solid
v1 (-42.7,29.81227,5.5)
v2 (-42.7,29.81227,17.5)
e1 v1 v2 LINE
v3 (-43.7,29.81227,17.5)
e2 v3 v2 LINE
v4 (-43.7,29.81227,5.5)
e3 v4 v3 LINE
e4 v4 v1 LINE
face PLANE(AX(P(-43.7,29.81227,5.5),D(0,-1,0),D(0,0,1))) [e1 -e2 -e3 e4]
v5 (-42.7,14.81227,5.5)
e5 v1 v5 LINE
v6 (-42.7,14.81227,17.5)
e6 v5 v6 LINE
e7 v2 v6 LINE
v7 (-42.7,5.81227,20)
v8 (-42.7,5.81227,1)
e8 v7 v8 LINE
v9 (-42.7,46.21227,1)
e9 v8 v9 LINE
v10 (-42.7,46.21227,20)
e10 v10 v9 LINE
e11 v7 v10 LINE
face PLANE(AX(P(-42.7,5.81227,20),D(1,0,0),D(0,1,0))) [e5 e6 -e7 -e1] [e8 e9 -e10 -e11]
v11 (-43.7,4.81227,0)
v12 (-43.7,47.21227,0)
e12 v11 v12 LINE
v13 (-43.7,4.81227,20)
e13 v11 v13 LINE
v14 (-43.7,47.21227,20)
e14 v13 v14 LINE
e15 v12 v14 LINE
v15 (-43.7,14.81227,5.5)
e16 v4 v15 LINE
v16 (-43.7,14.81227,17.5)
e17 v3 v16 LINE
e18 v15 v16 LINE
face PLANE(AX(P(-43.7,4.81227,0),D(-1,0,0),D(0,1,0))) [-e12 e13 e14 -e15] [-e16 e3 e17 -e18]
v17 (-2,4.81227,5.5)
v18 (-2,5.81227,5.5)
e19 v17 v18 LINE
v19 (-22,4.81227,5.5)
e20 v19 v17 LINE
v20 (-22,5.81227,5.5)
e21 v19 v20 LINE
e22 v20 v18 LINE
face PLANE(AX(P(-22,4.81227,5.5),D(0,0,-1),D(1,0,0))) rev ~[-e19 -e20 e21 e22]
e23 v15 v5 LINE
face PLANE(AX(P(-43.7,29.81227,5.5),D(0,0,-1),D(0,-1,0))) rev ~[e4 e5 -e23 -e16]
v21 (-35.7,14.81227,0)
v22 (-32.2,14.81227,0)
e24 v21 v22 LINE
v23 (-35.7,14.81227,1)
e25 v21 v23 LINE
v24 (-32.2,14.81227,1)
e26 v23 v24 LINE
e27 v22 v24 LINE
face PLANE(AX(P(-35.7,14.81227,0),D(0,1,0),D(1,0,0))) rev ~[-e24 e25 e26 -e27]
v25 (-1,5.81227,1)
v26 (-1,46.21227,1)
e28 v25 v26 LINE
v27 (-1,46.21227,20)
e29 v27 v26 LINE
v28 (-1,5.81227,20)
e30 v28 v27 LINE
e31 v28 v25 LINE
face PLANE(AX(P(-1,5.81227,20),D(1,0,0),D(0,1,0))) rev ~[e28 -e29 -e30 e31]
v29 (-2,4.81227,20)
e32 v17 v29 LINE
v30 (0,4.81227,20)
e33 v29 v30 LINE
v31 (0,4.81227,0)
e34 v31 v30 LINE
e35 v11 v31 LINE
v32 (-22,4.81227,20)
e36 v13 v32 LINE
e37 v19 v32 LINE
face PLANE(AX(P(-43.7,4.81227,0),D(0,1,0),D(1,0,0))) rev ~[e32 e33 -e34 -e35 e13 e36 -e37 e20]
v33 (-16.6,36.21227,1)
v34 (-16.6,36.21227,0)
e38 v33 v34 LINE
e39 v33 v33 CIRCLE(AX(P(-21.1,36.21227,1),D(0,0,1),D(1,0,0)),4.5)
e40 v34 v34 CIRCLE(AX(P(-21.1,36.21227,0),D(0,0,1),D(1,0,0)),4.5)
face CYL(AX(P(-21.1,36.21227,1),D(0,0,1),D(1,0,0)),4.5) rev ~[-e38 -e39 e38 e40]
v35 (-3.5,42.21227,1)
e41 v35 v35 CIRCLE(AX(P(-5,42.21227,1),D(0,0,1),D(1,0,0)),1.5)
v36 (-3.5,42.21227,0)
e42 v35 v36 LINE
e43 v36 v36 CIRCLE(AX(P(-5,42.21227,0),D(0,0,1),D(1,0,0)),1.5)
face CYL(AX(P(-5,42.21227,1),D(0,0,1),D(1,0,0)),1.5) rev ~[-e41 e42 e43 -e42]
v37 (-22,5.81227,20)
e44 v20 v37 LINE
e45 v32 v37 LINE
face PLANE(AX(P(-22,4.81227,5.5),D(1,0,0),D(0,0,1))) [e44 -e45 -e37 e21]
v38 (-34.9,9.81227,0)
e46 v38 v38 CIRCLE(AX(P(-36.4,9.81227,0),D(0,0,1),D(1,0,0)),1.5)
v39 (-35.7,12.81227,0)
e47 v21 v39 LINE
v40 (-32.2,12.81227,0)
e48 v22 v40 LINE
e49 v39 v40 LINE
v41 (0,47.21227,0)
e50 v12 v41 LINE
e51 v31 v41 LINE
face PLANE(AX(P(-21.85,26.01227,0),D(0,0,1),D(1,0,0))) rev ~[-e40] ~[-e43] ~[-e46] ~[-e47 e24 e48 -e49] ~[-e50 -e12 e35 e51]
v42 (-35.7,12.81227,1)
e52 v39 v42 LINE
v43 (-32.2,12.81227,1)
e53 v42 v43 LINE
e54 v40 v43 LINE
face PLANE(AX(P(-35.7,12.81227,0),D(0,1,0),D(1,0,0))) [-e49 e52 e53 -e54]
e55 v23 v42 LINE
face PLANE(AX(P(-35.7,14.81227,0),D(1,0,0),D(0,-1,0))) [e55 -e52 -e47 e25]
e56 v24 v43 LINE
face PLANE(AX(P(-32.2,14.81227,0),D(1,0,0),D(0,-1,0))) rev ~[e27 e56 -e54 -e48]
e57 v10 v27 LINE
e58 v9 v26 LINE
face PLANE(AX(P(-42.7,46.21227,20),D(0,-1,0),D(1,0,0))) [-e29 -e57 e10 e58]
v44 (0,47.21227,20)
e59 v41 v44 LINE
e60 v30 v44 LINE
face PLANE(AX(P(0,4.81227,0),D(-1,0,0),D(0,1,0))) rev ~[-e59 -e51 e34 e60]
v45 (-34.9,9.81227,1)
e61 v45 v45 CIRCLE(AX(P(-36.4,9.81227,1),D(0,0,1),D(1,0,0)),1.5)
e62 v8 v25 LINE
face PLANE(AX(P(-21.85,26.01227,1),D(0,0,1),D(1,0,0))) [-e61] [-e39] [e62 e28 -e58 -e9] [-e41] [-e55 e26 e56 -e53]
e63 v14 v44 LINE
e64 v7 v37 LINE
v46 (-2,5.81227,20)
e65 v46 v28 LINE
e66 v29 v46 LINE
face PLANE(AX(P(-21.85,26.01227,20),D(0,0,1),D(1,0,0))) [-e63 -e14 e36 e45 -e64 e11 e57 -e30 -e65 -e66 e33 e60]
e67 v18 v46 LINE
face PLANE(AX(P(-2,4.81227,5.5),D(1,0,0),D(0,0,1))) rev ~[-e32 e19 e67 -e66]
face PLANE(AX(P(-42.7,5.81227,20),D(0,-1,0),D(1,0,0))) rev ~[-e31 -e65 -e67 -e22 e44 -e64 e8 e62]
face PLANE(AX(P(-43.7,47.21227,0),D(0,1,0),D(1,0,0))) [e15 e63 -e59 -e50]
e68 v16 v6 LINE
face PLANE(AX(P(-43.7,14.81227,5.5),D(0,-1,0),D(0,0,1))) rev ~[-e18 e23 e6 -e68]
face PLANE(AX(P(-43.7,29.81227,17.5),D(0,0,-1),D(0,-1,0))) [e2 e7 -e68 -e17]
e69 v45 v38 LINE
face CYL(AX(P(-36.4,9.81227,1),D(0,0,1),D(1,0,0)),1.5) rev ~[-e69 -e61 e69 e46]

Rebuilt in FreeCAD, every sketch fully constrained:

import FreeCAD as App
import Part
import Sketcher

doc = App.newDocument("Part")
body = doc.addObject("PartDesign::Body", "Body")

sketch1 = body.newObject("Sketcher::SketchObject", "Sketch")
sketch1.AttachmentSupport = (doc.getObject("XY_Plane"), [""])
sketch1.MapMode = "FlatFace"
sketch1.addGeometry([
    Part.LineSegment(App.Vector(-44, 47, 0), App.Vector(-44, 5, 0)),
    Part.LineSegment(App.Vector(-44, 5, 0), App.Vector(0, 5, 0)),
    Part.LineSegment(App.Vector(0, 5, 0), App.Vector(0, 47, 0)),
    Part.LineSegment(App.Vector(0, 47, 0), App.Vector(-44, 47, 0)),
], False)
sketch1.addConstraint([
    Sketcher.Constraint("Coincident", 0, 2, 1, 1),
    Sketcher.Constraint("Coincident", 1, 2, 2, 1),
    Sketcher.Constraint("Coincident", 2, 2, 3, 1),
    Sketcher.Constraint("Coincident", 3, 2, 0, 1),
    Sketcher.Constraint("Vertical", 0),
    Sketcher.Constraint("Horizontal", 1),
    Sketcher.Constraint("Vertical", 2),
    Sketcher.Constraint("Horizontal", 3),
    Sketcher.Constraint("PointOnObject", 1, 2, -2),
    Sketcher.Constraint("DistanceX", 1, 1, 1, 2, 43.7),
    Sketcher.Constraint("DistanceY", 0, 2, 0, 1, 42.4),
    Sketcher.Constraint("DistanceY", -1, 1, 0, 2, 4.81227),
])
pad1 = body.newObject("PartDesign::Pad", "Pad")
pad1.Profile = sketch1
pad1.Length = 20

sketch2 = body.newObject("Sketcher::SketchObject", "Sketch001")
sketch2.AttachmentSupport = (doc.getObject("XY_Plane"), [""])
sketch2.MapMode = "FlatFace"
sketch2.AttachmentOffset = App.Placement(App.Vector(0, 0, 20), App.Rotation())
sketch2.addGeometry([
    Part.LineSegment(App.Vector(-43, 46, 0), App.Vector(-43, 6, 0)),
    Part.LineSegment(App.Vector(-43, 6, 0), App.Vector(-1, 6, 0)),
    Part.LineSegment(App.Vector(-1, 6, 0), App.Vector(-1, 46, 0)),
    Part.LineSegment(App.Vector(-1, 46, 0), App.Vector(-43, 46, 0)),
], False)
sketch2.addConstraint([
    Sketcher.Constraint("Coincident", 0, 2, 1, 1),
    Sketcher.Constraint("Coincident", 1, 2, 2, 1),
    Sketcher.Constraint("Coincident", 2, 2, 3, 1),
    Sketcher.Constraint("Coincident", 3, 2, 0, 1),
    Sketcher.Constraint("Vertical", 0),
    Sketcher.Constraint("Horizontal", 1),
    Sketcher.Constraint("Vertical", 2),
    Sketcher.Constraint("Horizontal", 3),
    Sketcher.Constraint("DistanceX", 1, 1, 1, 2, 41.7),
    Sketcher.Constraint("DistanceY", 0, 2, 0, 1, 40.4),
    Sketcher.Constraint("DistanceX", 1, 2, -1, 1, 1.0),
    Sketcher.Constraint("DistanceY", -1, 1, 0, 2, 5.81227),
])
pocket1 = body.newObject("PartDesign::Pocket", "Pocket")
pocket1.Profile = sketch2
pocket1.Length = 19

sketch3 = body.newObject("Sketcher::SketchObject", "Sketch002")
sketch3.AttachmentSupport = (doc.getObject("XY_Plane"), [""])
sketch3.MapMode = "FlatFace"
sketch3.AttachmentOffset = App.Placement(App.Vector(0, 0, 1), App.Rotation())
sketch3.addGeometry([
    Part.Circle(App.Vector(-5, 42.2, 0), App.Vector(0, 0, 1), 1.5),
    Part.Circle(App.Vector(-36.4, 9.8, 0), App.Vector(0, 0, 1), 1.5),
], False)
sketch3.addConstraint([
    Sketcher.Constraint("Equal", 0, 1),
    Sketcher.Constraint("Diameter", 0, 3.0),
    Sketcher.Constraint("DistanceX", 0, 3, -1, 1, 5.0),
    Sketcher.Constraint("DistanceX", 1, 3, -1, 1, 36.4),
    Sketcher.Constraint("DistanceY", 1, 3, 0, 3, 32.4),
    Sketcher.Constraint("DistanceY", -1, 1, 0, 3, 42.21227),
])
pocket2 = body.newObject("PartDesign::Pocket", "Pocket001")
pocket2.Profile = sketch3
pocket2.Length = 1

sketch4 = body.newObject("Sketcher::SketchObject", "Sketch003")
sketch4.AttachmentSupport = (doc.getObject("XY_Plane"), [""])
sketch4.MapMode = "FlatFace"
sketch4.AttachmentOffset = App.Placement(App.Vector(0, 0, 1), App.Rotation())
sketch4.addGeometry(Part.Circle(App.Vector(-21.1, 36.2, 0), App.Vector(0, 0, 1), 4.5), False)
sketch4.addConstraint([
    Sketcher.Constraint("Diameter", 0, 9.0),
    Sketcher.Constraint("DistanceX", 0, 3, -1, 1, 21.1),
    Sketcher.Constraint("DistanceY", -1, 1, 0, 3, 36.21227),
])
pocket3 = body.newObject("PartDesign::Pocket", "Pocket002")
pocket3.Profile = sketch4
pocket3.Length = 1

sketch5 = body.newObject("Sketcher::SketchObject", "Sketch004")
sketch5.AttachmentSupport = (doc.getObject("YZ_Plane"), [""])
sketch5.MapMode = "FlatFace"
sketch5.AttachmentOffset = App.Placement(App.Vector(0, 0, -43.7), App.Rotation())
sketch5.addGeometry([
    Part.LineSegment(App.Vector(30, 18, 0), App.Vector(30, 6, 0)),
    Part.LineSegment(App.Vector(30, 6, 0), App.Vector(15, 6, 0)),
    Part.LineSegment(App.Vector(15, 6, 0), App.Vector(15, 18, 0)),
    Part.LineSegment(App.Vector(15, 18, 0), App.Vector(30, 18, 0)),
], False)
sketch5.addConstraint([
    Sketcher.Constraint("Coincident", 0, 2, 1, 1),
    Sketcher.Constraint("Coincident", 1, 2, 2, 1),
    Sketcher.Constraint("Coincident", 2, 2, 3, 1),
    Sketcher.Constraint("Coincident", 3, 2, 0, 1),
    Sketcher.Constraint("Vertical", 0),
    Sketcher.Constraint("Horizontal", 1),
    Sketcher.Constraint("Vertical", 2),
    Sketcher.Constraint("Horizontal", 3),
    Sketcher.Constraint("DistanceX", 1, 2, 1, 1, 15.0),
    Sketcher.Constraint("DistanceY", 0, 2, 0, 1, 12.0),
    Sketcher.Constraint("DistanceY", -1, 1, 0, 2, 5.5),
    Sketcher.Constraint("DistanceX", -1, 1, 0, 2, 29.81227),
])
pocket4 = body.newObject("PartDesign::Pocket", "Pocket003")
pocket4.Profile = sketch5
pocket4.Length = 1
pocket4.Reversed = True

sketch6 = body.newObject("Sketcher::SketchObject", "Sketch005")
sketch6.AttachmentSupport = (doc.getObject("XZ_Plane"), [""])
sketch6.MapMode = "FlatFace"
sketch6.AttachmentOffset = App.Placement(App.Vector(0, 0, -4.81227), App.Rotation())
sketch6.addGeometry([
    Part.LineSegment(App.Vector(-22, 20, 0), App.Vector(-22, 6, 0)),
    Part.LineSegment(App.Vector(-22, 6, 0), App.Vector(-2, 6, 0)),
    Part.LineSegment(App.Vector(-2, 6, 0), App.Vector(-2, 20, 0)),
    Part.LineSegment(App.Vector(-2, 20, 0), App.Vector(-22, 20, 0)),
], False)
sketch6.addConstraint([
    Sketcher.Constraint("Coincident", 0, 2, 1, 1),
    Sketcher.Constraint("Coincident", 1, 2, 2, 1),
    Sketcher.Constraint("Coincident", 2, 2, 3, 1),
    Sketcher.Constraint("Coincident", 3, 2, 0, 1),
    Sketcher.Constraint("Vertical", 0),
    Sketcher.Constraint("Horizontal", 1),
    Sketcher.Constraint("Vertical", 2),
    Sketcher.Constraint("Horizontal", 3),
    Sketcher.Constraint("DistanceX", 1, 1, 1, 2, 20.0),
    Sketcher.Constraint("DistanceY", 0, 2, 0, 1, 14.5),
    Sketcher.Constraint("DistanceX", 0, 2, -1, 1, 22.0),
    Sketcher.Constraint("DistanceY", -1, 1, 2, 2, 20.0),
])
pocket5 = body.newObject("PartDesign::Pocket", "Pocket004")
pocket5.Profile = sketch6
pocket5.Length = 1

sketch7 = body.newObject("Sketcher::SketchObject", "Sketch006")
sketch7.AttachmentSupport = (doc.getObject("XY_Plane"), [""])
sketch7.MapMode = "FlatFace"
sketch7.addGeometry([
    Part.LineSegment(App.Vector(-35.7, 12.8, 0), App.Vector(-35.7, 14.8, 0)),
    Part.LineSegment(App.Vector(-35.7, 14.8, 0), App.Vector(-32.2, 14.8, 0)),
    Part.LineSegment(App.Vector(-32.2, 14.8, 0), App.Vector(-32.2, 12.8, 0)),
    Part.LineSegment(App.Vector(-32.2, 12.8, 0), App.Vector(-35.7, 12.8, 0)),
], False)
sketch7.addConstraint([
    Sketcher.Constraint("Coincident", 0, 2, 1, 1),
    Sketcher.Constraint("Coincident", 1, 2, 2, 1),
    Sketcher.Constraint("Coincident", 2, 2, 3, 1),
    Sketcher.Constraint("Coincident", 3, 2, 0, 1),
    Sketcher.Constraint("Vertical", 0),
    Sketcher.Constraint("Horizontal", 1),
    Sketcher.Constraint("Vertical", 2),
    Sketcher.Constraint("Horizontal", 3),
    Sketcher.Constraint("DistanceY", 0, 1, 0, 2, 2.0),
    Sketcher.Constraint("DistanceX", 1, 1, 1, 2, 3.5),
    Sketcher.Constraint("DistanceX", 0, 2, -1, 1, 35.7),
    Sketcher.Constraint("DistanceY", -1, 1, 0, 2, 14.81227),
])
pocket6 = body.newObject("PartDesign::Pocket", "Pocket005")
pocket6.Profile = sketch7
pocket6.Length = 1
pocket6.Reversed = True

doc.recompute()
